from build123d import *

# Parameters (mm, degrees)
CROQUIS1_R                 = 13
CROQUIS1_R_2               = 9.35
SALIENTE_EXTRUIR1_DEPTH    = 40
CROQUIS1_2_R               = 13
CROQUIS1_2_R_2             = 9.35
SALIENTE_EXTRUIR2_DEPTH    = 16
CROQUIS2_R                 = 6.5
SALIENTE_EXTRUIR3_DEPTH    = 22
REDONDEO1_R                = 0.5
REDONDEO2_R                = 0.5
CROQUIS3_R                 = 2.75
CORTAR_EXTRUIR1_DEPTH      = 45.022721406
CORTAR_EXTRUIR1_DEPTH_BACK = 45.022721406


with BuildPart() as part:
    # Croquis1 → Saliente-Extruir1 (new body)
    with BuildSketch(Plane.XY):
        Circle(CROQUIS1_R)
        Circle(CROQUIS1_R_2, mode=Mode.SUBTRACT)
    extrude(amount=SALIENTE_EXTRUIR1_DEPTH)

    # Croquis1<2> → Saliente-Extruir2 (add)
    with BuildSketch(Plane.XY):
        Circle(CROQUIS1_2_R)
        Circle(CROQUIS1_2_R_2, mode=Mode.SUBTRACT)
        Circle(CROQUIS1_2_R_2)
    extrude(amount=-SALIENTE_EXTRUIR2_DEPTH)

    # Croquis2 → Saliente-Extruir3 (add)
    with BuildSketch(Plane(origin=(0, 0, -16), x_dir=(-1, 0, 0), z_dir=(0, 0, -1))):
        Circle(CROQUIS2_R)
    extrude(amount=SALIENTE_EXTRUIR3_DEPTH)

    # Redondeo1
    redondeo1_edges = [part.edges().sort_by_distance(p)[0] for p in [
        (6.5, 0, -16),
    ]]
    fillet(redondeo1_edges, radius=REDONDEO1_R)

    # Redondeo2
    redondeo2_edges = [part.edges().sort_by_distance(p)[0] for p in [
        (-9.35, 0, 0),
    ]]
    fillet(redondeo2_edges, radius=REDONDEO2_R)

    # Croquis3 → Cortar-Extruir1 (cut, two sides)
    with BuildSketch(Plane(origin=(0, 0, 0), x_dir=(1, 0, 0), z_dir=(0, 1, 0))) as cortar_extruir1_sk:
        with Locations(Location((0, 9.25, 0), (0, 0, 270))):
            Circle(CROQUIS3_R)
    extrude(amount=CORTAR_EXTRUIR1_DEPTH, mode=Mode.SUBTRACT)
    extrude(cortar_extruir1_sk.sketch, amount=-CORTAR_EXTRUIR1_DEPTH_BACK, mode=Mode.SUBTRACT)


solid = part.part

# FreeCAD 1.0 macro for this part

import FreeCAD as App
import Part
import Sketcher

V = App.Vector
Q = App.Units.Quantity


def edges_at(feature, points):
    """Names of the edges that pass closest to the given points."""
    edges = feature.Shape.Edges
    near = lambda p: min(range(len(edges)), key=lambda i: edges[i].distToShape(Part.Vertex(*p))[0])
    return sorted({f"Edge{near(p) + 1}" for p in points})

doc = App.newDocument("Part")
body = doc.addObject("PartDesign::Body", "Body")

# Sketch on XY plane
sketch1 = doc.addObject("Sketcher::SketchObject", "Sketch")
body.addObject(sketch1)
sketch1.AttachmentSupport = (doc.XY_Plane, [""])
sketch1.MapMode = "FlatFace"
sketch1.addGeometry([
    Part.Circle(V(0, 0, 0), V(0, 0, 1), 13),
    Part.Circle(V(0, 0, 0), V(0, 0, 1), 9),
], False)
sketch1.addConstraint([
    Sketcher.Constraint("Coincident", 0, 3, -1, 1),
    Sketcher.Constraint("Coincident", 1, 3, -1, 1),
    Sketcher.Constraint("Diameter", 0, Q("26 mm")),
    Sketcher.Constraint("Diameter", 1, Q("18.7 mm")),
])
pad1 = doc.addObject("PartDesign::Pad", "Pad")
body.addObject(pad1)
pad1.Profile = sketch1
pad1.Length = 40

# Sketch on XY plane
sketch2 = doc.addObject("Sketcher::SketchObject", "Sketch001")
body.addObject(sketch2)
sketch2.AttachmentSupport = (doc.XY_Plane, [""])
sketch2.MapMode = "FlatFace"
sketch2.addGeometry(Part.Circle(V(0, 0, 0), V(0, 0, 1), 13), False)
sketch2.addConstraint([
    Sketcher.Constraint("Coincident", 0, 3, -1, 1),
    Sketcher.Constraint("Diameter", 0, Q("26 mm")),
])
pad2 = doc.addObject("PartDesign::Pad", "Pad001")
body.addObject(pad2)
pad2.Profile = sketch2
pad2.Length = 16
pad2.Reversed = True

# Sketch on XY plane
sketch3 = doc.addObject("Sketcher::SketchObject", "Sketch002")
body.addObject(sketch3)
sketch3.AttachmentSupport = (doc.XY_Plane, [""])
sketch3.MapMode = "FlatFace"
sketch3.AttachmentOffset = App.Placement(V(0, 0, -16), App.Rotation())
sketch3.addGeometry(Part.Circle(V(0, 0, 0), V(0, 0, 1), 6), False)
sketch3.addConstraint([
    Sketcher.Constraint("Coincident", 0, 3, -1, 1),
    Sketcher.Constraint("Diameter", 0, Q("13 mm")),
])
pad3 = doc.addObject("PartDesign::Pad", "Pad002")
body.addObject(pad3)
pad3.Profile = sketch3
pad3.Length = 22
pad3.Reversed = True
doc.recompute()

fillet = doc.addObject("PartDesign::Fillet", "Fillet")
body.addObject(fillet)
fillet.Base = (pad3, edges_at(pad3, [(6.5, 0, -16)]))
fillet.Radius = 0.5
doc.recompute()

fillet2 = doc.addObject("PartDesign::Fillet", "Fillet001")
body.addObject(fillet2)
fillet2.Base = (fillet, edges_at(fillet, [(-9.35, 0, 0)]))
fillet2.Radius = 0.5

# Sketch on XZ plane
sketch4 = doc.addObject("Sketcher::SketchObject", "Sketch003")
body.addObject(sketch4)
sketch4.AttachmentSupport = (doc.XZ_Plane, [""])
sketch4.MapMode = "FlatFace"
sketch4.addGeometry(Part.Circle(V(0, -9.2, 0), V(0, 0, 1), 2.8), False)
sketch4.addConstraint([
    Sketcher.Constraint("PointOnObject", 0, 3, -2),
    Sketcher.Constraint("Diameter", 0, Q("5.5 mm")),
    Sketcher.Constraint("DistanceY", 0, 3, -1, 1, Q("9.25 mm")),
])
pocket1 = doc.addObject("PartDesign::Pocket", "Pocket")
body.addObject(pocket1)
pocket1.Profile = sketch4
pocket1.Type = "ThroughAll"
pocket1.Midplane = True

doc.recompute()
